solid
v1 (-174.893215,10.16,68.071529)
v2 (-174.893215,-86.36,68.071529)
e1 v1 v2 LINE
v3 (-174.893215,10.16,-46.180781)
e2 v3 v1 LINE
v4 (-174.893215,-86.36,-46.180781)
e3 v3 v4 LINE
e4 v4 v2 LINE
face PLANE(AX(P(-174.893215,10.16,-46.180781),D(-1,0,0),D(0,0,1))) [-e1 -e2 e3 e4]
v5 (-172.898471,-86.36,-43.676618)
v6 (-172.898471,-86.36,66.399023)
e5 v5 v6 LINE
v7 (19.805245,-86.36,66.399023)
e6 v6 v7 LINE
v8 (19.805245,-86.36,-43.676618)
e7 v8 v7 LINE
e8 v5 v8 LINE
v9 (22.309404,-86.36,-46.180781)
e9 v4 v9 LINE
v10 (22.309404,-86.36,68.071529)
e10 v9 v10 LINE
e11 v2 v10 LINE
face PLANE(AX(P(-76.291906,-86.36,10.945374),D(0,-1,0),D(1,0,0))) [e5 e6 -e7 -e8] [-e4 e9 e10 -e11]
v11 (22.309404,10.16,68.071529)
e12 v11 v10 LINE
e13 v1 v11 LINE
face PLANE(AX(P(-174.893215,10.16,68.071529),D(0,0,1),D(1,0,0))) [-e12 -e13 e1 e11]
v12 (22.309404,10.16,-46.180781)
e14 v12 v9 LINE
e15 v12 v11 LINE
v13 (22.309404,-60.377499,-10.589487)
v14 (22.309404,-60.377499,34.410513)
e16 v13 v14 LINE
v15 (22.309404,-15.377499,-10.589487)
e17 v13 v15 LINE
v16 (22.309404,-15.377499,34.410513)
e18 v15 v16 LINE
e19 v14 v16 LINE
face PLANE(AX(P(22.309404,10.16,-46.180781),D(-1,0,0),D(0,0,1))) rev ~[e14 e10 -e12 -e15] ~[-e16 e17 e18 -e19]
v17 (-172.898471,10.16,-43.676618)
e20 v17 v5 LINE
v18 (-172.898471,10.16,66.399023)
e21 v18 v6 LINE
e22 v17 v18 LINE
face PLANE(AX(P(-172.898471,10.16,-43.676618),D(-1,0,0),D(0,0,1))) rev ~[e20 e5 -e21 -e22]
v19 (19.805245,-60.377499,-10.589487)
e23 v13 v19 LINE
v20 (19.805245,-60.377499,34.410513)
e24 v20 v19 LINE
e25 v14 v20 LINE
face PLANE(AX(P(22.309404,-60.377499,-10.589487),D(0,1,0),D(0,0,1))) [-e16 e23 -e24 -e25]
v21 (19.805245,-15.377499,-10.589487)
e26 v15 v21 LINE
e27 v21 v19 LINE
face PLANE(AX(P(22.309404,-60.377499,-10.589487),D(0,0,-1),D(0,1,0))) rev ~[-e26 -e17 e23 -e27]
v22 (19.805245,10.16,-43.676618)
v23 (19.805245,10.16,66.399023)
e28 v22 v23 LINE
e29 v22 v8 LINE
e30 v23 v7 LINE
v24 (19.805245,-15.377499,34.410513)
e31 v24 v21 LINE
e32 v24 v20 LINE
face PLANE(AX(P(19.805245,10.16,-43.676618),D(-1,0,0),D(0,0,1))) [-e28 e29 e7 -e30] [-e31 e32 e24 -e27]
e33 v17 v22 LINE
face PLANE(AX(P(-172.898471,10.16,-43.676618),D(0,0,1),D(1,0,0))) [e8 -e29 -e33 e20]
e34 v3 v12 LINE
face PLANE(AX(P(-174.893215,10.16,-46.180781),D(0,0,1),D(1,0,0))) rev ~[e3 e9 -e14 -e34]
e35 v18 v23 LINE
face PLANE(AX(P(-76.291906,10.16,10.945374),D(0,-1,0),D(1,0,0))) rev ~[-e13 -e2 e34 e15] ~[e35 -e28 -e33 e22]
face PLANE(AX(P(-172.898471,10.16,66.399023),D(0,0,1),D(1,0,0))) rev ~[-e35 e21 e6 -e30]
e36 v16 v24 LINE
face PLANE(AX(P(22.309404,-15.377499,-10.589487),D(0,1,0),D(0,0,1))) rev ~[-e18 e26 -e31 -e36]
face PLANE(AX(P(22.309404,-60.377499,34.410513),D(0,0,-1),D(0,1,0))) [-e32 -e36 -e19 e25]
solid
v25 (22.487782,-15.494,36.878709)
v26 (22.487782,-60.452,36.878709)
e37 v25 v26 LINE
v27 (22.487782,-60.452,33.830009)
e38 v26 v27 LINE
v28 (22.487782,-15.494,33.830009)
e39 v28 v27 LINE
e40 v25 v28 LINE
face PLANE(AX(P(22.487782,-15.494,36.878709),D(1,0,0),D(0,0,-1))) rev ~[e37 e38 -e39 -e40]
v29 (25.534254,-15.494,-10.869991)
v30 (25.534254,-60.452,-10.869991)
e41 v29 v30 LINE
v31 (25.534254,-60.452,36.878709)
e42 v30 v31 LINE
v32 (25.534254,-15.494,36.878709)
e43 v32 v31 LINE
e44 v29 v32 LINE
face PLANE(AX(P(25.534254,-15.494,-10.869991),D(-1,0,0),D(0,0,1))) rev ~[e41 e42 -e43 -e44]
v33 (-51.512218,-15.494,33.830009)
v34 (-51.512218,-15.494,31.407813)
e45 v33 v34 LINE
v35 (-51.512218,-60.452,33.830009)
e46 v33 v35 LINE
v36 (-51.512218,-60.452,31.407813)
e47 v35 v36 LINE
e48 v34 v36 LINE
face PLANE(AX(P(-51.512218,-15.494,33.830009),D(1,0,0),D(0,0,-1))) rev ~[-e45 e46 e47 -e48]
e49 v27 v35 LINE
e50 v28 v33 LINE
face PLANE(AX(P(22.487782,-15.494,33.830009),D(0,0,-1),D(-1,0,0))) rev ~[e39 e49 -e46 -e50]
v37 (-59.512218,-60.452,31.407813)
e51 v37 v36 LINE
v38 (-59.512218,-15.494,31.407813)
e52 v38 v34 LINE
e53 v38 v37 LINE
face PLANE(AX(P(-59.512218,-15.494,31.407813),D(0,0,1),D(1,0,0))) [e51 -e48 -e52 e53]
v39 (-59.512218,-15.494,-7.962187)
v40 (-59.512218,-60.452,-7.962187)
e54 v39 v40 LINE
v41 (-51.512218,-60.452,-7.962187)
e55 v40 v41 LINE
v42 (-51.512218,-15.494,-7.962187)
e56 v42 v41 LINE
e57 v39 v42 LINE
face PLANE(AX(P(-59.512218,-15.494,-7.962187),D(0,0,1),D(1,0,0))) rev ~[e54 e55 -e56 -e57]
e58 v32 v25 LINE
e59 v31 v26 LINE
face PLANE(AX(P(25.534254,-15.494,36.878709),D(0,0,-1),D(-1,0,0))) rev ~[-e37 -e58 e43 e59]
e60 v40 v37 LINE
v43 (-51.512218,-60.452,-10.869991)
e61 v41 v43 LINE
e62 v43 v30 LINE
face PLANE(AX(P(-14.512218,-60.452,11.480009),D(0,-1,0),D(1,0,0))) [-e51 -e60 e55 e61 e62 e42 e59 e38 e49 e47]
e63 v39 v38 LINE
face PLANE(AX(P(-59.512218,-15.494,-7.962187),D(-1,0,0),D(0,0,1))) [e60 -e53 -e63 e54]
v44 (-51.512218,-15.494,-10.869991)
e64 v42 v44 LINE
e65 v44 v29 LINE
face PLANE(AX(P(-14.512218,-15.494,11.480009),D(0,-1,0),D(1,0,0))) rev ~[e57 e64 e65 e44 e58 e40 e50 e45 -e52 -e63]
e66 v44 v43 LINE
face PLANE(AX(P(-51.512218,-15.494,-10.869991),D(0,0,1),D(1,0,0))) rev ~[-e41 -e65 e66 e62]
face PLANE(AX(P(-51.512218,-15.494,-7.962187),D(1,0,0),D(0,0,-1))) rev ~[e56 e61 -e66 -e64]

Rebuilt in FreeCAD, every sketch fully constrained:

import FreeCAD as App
import Part
import Sketcher
from FreeCAD import Vector
Q = App.Units.Quantity


def add_polygon(sketch, points):
    """Adds a closed chain of lines whose ends are joined by coincident constraints."""
    first, n = sketch.GeometryCount, len(points)
    for a, b in zip(points, points[1:] + points[:1]):
        sketch.addGeometry(Part.LineSegment(App.Vector(*a, 0), App.Vector(*b, 0)), False)
    for i in range(n):
        sketch.addConstraint(Sketcher.Constraint("Coincident", first + i, 2, first + (i + 1) % n, 1))

doc = App.newDocument("Part")
params = doc.addObject("Spreadsheet::Sheet", "Params")
for row, (alias, value) in enumerate([
    ("sketch1_width", "74 mm"),
    ("sketch1_width2", "8 mm"),
    ("sketch1_height", "39.37 mm"),
    ("pad1_length", "45 mm"),
    ("sketch2_width", "200 mm"),
    ("sketch2_height", "90 mm"),
    ("pad2_length", "120 mm"),
    ("sketch3_width", "74 mm"),
    ("sketch3_width2", "8 mm"),
    ("sketch3_height", "39.37 mm"),
    ("pad3_length", "44.958 mm"),
    ("pad4_length", "96.52 mm"),
    ("sketch5_width", "45 mm"),
    ("pocket1_length", "25.4 mm"),
], start=1):
    params.set(f"A{row}", alias)
    params.set(f"B{row}", "=" + value)
    params.setAlias(f"B{row}", alias)

body = doc.addObject("PartDesign::Body", "Body")

# Sketch on XZ plane
sketch1 = doc.addObject("Sketcher::SketchObject", "Sketch")
body.addObject(sketch1)
sketch1.AttachmentSupport = (doc.XZ_Plane, [""])
sketch1.MapMode = "FlatFace"
add_polygon(sketch1, [(22.5, 9.2), (-51.5, 9.2), (-51.5, 6.8), (-59.5, 6.8), (-59.5, -32.6), (-51.5, -32.6), (-51.5, -35.5), (25.5, -35.5), (25.5, 12.2), (22.5, 12.2)])  # lines 0-9
sketch1.addConstraint([
    Sketcher.Constraint("Horizontal", 0),
    Sketcher.Constraint("Vertical", 1),
    Sketcher.Constraint("Horizontal", 2),
    Sketcher.Constraint("Vertical", 3),
    Sketcher.Constraint("Horizontal", 4),
    Sketcher.Constraint("Vertical", 5),
    Sketcher.Constraint("Horizontal", 6),
    Sketcher.Constraint("Vertical", 7),
    Sketcher.Constraint("Horizontal", 8),
    Sketcher.Constraint("Vertical", 9),
    Sketcher.Constraint("Vertical", 1, 2, 4, 2),
    Sketcher.Constraint("DistanceX", 0, 2, 0, 1, Q("74 mm")),
    Sketcher.Constraint("DistanceX", 2, 2, 2, 1, Q("8 mm")),
    Sketcher.Constraint("DistanceY", 3, 2, 3, 1, Q("39.37 mm")),
    Sketcher.Constraint("DistanceY", 5, 2, 0, 2, Q("44.7 mm")),
    Sketcher.Constraint("DistanceY", 7, 1, 7, 2, Q("47.7487 mm")),
    Sketcher.Constraint("DistanceX", 6, 1, 6, 2, Q("77.046472 mm")),
    Sketcher.Constraint("DistanceY", 1, 2, 1, 1, Q("2.422196 mm")),
    Sketcher.Constraint("DistanceX", 0, 2, -1, 1, Q("51.512218 mm")),
    Sketcher.Constraint("DistanceY", -1, 1, 0, 2, Q("9.192009 mm")),
])
sketch1.setExpression("Constraints[21]", "Params.sketch1_width")
sketch1.setExpression("Constraints[22]", "Params.sketch1_width2")
sketch1.setExpression("Constraints[23]", "Params.sketch1_height")
pad1 = doc.addObject("PartDesign::Pad", "Pad")
body.addObject(pad1)
pad1.Profile = sketch1
pad1.setExpression("Length", "Params.pad1_length")

# Sketch on XZ plane
sketch2 = doc.addObject("Sketcher::SketchObject", "Sketch001")
body.addObject(sketch2)
sketch2.AttachmentSupport = (doc.XZ_Plane, [""])
sketch2.MapMode = "FlatFace"
add_polygon(sketch2, [(-178, 33), (-178, -57), (22, -57), (22, 33)])  # lines 0-3
add_polygon(sketch2, [(20, -55), (-176, -55), (-176, 31), (20, 31)])  # lines 4-7
sketch2.addConstraint([
    Sketcher.Constraint("Vertical", 0),
    Sketcher.Constraint("Horizontal", 1),
    Sketcher.Constraint("Vertical", 2),
    Sketcher.Constraint("Horizontal", 3),
    Sketcher.Constraint("Horizontal", 4),
    Sketcher.Constraint("Vertical", 5),
    Sketcher.Constraint("Horizontal", 6),
    Sketcher.Constraint("Vertical", 7),
    Sketcher.Constraint("DistanceX", 1, 1, 1, 2, Q("200 mm")),
    Sketcher.Constraint("DistanceY", 0, 2, 0, 1, Q("90 mm")),
    Sketcher.Constraint("DistanceY", 5, 1, 5, 2, Q("85.96582 mm")),
    Sketcher.Constraint("DistanceX", 4, 2, 4, 1, Q("196.168683 mm")),
    Sketcher.Constraint("DistanceX", 4, 2, -1, 1, Q("175.910411 mm")),
    Sketcher.Constraint("DistanceY", 4, 2, -1, 1, Q("55.35691 mm")),
    Sketcher.Constraint("DistanceX", 6, 2, 2, 2, Q("1.800292 mm")),
    Sketcher.Constraint("DistanceY", 0, 2, -1, 1, Q("57.331023 mm")),
])
sketch2.setExpression("Constraints[16]", "Params.sketch2_width")
sketch2.setExpression("Constraints[17]", "Params.sketch2_height")
pad2 = doc.addObject("PartDesign::Pad", "Pad001")
body.addObject(pad2)
pad2.Profile = sketch2
pad2.setExpression("Length", "Params.pad2_length")
body2 = doc.addObject("PartDesign::Body", "Body001")
doc.recompute()

body.Placement = App.Placement(Vector(0, 20.574, 0), App.Rotation(Vector(0, 0, 1), 0))
boolean = doc.addObject("PartDesign::Boolean", "Boolean")
body2.addObject(boolean)
boolean.Type = "Fuse"
boolean.addObjects([body])
body3 = doc.addObject("PartDesign::Body", "Body002")

# Sketch on XZ plane
sketch3 = doc.addObject("Sketcher::SketchObject", "Sketch002")
body3.addObject(sketch3)
sketch3.AttachmentSupport = (doc.getObject("XZ_Plane002"), [""])
sketch3.MapMode = "FlatFace"
add_polygon(sketch3, [(22.5, 9.2), (-51.5, 9.2), (-51.5, 6.8), (-59.5, 6.8), (-59.5, -32.6), (-51.5, -32.6), (-51.5, -35.5), (25.5, -35.5), (25.5, 12.2), (22.5, 12.2)])  # lines 0-9
sketch3.addConstraint([
    Sketcher.Constraint("Horizontal", 0),
    Sketcher.Constraint("Vertical", 1),
    Sketcher.Constraint("Horizontal", 2),
    Sketcher.Constraint("Vertical", 3),
    Sketcher.Constraint("Horizontal", 4),
    Sketcher.Constraint("Vertical", 5),
    Sketcher.Constraint("Horizontal", 6),
    Sketcher.Constraint("Vertical", 7),
    Sketcher.Constraint("Horizontal", 8),
    Sketcher.Constraint("Vertical", 9),
    Sketcher.Constraint("Vertical", 1, 2, 4, 2),
    Sketcher.Constraint("DistanceX", 0, 2, 0, 1, Q("74 mm")),
    Sketcher.Constraint("DistanceX", 2, 2, 2, 1, Q("8 mm")),
    Sketcher.Constraint("DistanceY", 3, 2, 3, 1, Q("39.37 mm")),
    Sketcher.Constraint("DistanceY", 5, 2, 0, 2, Q("44.7 mm")),
    Sketcher.Constraint("DistanceY", 7, 1, 7, 2, Q("47.7487 mm")),
    Sketcher.Constraint("DistanceX", 6, 1, 6, 2, Q("77.046472 mm")),
    Sketcher.Constraint("DistanceY", 1, 2, 1, 1, Q("2.422196 mm")),
    Sketcher.Constraint("DistanceX", 0, 2, -1, 1, Q("51.512218 mm")),
    Sketcher.Constraint("DistanceY", -1, 1, 0, 2, Q("9.192009 mm")),
])
sketch3.setExpression("Constraints[21]", "Params.sketch3_width")
sketch3.setExpression("Constraints[22]", "Params.sketch3_width2")
sketch3.setExpression("Constraints[23]", "Params.sketch3_height")
pad3 = doc.addObject("PartDesign::Pad", "Pad002")
body3.addObject(pad3)
pad3.Profile = sketch3
pad3.setExpression("Length", "Params.pad3_length")
body4 = doc.addObject("PartDesign::Body", "Body003")

# Sketch on XZ plane
sketch4 = doc.addObject("Sketcher::SketchObject", "Sketch003")
body4.addObject(sketch4)
sketch4.AttachmentSupport = (doc.getObject("XZ_Plane003"), [""])
sketch4.MapMode = "FlatFace"
add_polygon(sketch4, [(-175, 68), (-175, -46), (22, -46), (22, 68)])  # lines 0-3
add_polygon(sketch4, [(20, -44), (-173, -44), (-173, 66), (20, 66)])  # lines 4-7
sketch4.addConstraint([
    Sketcher.Constraint("Vertical", 0),
    Sketcher.Constraint("Horizontal", 1),
    Sketcher.Constraint("Vertical", 2),
    Sketcher.Constraint("Horizontal", 3),
    Sketcher.Constraint("Horizontal", 4),
    Sketcher.Constraint("Vertical", 5),
    Sketcher.Constraint("Horizontal", 6),
    Sketcher.Constraint("Vertical", 7),
    Sketcher.Constraint("DistanceX", 1, 1, 1, 2, Q("197.202619 mm")),
    Sketcher.Constraint("DistanceY", 0, 2, 0, 1, Q("114.25231 mm")),
    Sketcher.Constraint("DistanceY", 5, 1, 5, 2, Q("110.075641 mm")),
    Sketcher.Constraint("DistanceX", 4, 2, 4, 1, Q("192.703716 mm")),
    Sketcher.Constraint("DistanceY", 0, 2, -1, 1, Q("46.180781 mm")),
    Sketcher.Constraint("DistanceX", 4, 2, -1, 1, Q("172.898471 mm")),
    Sketcher.Constraint("DistanceY", 4, 2, -1, 1, Q("43.676618 mm")),
    Sketcher.Constraint("DistanceX", 6, 2, 2, 2, Q("2.504159 mm")),
])
pad4 = doc.addObject("PartDesign::Pad", "Pad003")
body4.addObject(pad4)
pad4.Profile = sketch4
pad4.setExpression("Length", "Params.pad4_length")
body5 = doc.addObject("PartDesign::Body", "Body004")
doc.recompute()

body4.Placement = App.Placement(Vector(0, 10.16, 0), App.Rotation(Vector(0, 0, 1), 0))
boolean2 = doc.addObject("PartDesign::Boolean", "Boolean001")
body5.addObject(boolean2)
boolean2.Type = "Fuse"
boolean2.addObjects([body4])

# Sketch on YZ plane
sketch5 = doc.addObject("Sketcher::SketchObject", "Sketch004")
body5.addObject(sketch5)
sketch5.AttachmentSupport = (doc.getObject("YZ_Plane004"), [""])
sketch5.MapMode = "FlatFace"
sketch5.AttachmentOffset = App.Placement(Vector(0, 0, 22.309404), App.Rotation())
add_polygon(sketch5, [(-60, 34), (-60, -11), (-15, -11), (-15, 34)])  # lines 0-3
sketch5.addConstraint([
    Sketcher.Constraint("Vertical", 0),
    Sketcher.Constraint("Horizontal", 1),
    Sketcher.Constraint("Vertical", 2),
    Sketcher.Constraint("Horizontal", 3),
    Sketcher.Constraint("Equal", 3, 0),
    Sketcher.Constraint("DistanceX", 1, 1, 1, 2, Q("45 mm")),
    Sketcher.Constraint("DistanceX", 0, 2, -1, 1, Q("60.377499 mm")),
    Sketcher.Constraint("DistanceY", 0, 2, -1, 1, Q("10.589487 mm")),
])
sketch5.setExpression("Constraints[9]", "Params.sketch5_width")
pocket1 = doc.addObject("PartDesign::Pocket", "Pocket")
body5.addObject(pocket1)
pocket1.Profile = sketch5
pocket1.setExpression("Length", "Params.pocket1_length")
body6 = doc.addObject("PartDesign::Body", "Body005")
doc.recompute()

body3.Placement = App.Placement(Vector(0, -15.494, 24.638), App.Rotation(Vector(0, 0, 1), 0))
boolean3 = doc.addObject("PartDesign::Boolean", "Boolean002")
body6.addObject(boolean3)
boolean3.Type = "Fuse"
boolean3.addObjects([body3])

doc.recompute()
